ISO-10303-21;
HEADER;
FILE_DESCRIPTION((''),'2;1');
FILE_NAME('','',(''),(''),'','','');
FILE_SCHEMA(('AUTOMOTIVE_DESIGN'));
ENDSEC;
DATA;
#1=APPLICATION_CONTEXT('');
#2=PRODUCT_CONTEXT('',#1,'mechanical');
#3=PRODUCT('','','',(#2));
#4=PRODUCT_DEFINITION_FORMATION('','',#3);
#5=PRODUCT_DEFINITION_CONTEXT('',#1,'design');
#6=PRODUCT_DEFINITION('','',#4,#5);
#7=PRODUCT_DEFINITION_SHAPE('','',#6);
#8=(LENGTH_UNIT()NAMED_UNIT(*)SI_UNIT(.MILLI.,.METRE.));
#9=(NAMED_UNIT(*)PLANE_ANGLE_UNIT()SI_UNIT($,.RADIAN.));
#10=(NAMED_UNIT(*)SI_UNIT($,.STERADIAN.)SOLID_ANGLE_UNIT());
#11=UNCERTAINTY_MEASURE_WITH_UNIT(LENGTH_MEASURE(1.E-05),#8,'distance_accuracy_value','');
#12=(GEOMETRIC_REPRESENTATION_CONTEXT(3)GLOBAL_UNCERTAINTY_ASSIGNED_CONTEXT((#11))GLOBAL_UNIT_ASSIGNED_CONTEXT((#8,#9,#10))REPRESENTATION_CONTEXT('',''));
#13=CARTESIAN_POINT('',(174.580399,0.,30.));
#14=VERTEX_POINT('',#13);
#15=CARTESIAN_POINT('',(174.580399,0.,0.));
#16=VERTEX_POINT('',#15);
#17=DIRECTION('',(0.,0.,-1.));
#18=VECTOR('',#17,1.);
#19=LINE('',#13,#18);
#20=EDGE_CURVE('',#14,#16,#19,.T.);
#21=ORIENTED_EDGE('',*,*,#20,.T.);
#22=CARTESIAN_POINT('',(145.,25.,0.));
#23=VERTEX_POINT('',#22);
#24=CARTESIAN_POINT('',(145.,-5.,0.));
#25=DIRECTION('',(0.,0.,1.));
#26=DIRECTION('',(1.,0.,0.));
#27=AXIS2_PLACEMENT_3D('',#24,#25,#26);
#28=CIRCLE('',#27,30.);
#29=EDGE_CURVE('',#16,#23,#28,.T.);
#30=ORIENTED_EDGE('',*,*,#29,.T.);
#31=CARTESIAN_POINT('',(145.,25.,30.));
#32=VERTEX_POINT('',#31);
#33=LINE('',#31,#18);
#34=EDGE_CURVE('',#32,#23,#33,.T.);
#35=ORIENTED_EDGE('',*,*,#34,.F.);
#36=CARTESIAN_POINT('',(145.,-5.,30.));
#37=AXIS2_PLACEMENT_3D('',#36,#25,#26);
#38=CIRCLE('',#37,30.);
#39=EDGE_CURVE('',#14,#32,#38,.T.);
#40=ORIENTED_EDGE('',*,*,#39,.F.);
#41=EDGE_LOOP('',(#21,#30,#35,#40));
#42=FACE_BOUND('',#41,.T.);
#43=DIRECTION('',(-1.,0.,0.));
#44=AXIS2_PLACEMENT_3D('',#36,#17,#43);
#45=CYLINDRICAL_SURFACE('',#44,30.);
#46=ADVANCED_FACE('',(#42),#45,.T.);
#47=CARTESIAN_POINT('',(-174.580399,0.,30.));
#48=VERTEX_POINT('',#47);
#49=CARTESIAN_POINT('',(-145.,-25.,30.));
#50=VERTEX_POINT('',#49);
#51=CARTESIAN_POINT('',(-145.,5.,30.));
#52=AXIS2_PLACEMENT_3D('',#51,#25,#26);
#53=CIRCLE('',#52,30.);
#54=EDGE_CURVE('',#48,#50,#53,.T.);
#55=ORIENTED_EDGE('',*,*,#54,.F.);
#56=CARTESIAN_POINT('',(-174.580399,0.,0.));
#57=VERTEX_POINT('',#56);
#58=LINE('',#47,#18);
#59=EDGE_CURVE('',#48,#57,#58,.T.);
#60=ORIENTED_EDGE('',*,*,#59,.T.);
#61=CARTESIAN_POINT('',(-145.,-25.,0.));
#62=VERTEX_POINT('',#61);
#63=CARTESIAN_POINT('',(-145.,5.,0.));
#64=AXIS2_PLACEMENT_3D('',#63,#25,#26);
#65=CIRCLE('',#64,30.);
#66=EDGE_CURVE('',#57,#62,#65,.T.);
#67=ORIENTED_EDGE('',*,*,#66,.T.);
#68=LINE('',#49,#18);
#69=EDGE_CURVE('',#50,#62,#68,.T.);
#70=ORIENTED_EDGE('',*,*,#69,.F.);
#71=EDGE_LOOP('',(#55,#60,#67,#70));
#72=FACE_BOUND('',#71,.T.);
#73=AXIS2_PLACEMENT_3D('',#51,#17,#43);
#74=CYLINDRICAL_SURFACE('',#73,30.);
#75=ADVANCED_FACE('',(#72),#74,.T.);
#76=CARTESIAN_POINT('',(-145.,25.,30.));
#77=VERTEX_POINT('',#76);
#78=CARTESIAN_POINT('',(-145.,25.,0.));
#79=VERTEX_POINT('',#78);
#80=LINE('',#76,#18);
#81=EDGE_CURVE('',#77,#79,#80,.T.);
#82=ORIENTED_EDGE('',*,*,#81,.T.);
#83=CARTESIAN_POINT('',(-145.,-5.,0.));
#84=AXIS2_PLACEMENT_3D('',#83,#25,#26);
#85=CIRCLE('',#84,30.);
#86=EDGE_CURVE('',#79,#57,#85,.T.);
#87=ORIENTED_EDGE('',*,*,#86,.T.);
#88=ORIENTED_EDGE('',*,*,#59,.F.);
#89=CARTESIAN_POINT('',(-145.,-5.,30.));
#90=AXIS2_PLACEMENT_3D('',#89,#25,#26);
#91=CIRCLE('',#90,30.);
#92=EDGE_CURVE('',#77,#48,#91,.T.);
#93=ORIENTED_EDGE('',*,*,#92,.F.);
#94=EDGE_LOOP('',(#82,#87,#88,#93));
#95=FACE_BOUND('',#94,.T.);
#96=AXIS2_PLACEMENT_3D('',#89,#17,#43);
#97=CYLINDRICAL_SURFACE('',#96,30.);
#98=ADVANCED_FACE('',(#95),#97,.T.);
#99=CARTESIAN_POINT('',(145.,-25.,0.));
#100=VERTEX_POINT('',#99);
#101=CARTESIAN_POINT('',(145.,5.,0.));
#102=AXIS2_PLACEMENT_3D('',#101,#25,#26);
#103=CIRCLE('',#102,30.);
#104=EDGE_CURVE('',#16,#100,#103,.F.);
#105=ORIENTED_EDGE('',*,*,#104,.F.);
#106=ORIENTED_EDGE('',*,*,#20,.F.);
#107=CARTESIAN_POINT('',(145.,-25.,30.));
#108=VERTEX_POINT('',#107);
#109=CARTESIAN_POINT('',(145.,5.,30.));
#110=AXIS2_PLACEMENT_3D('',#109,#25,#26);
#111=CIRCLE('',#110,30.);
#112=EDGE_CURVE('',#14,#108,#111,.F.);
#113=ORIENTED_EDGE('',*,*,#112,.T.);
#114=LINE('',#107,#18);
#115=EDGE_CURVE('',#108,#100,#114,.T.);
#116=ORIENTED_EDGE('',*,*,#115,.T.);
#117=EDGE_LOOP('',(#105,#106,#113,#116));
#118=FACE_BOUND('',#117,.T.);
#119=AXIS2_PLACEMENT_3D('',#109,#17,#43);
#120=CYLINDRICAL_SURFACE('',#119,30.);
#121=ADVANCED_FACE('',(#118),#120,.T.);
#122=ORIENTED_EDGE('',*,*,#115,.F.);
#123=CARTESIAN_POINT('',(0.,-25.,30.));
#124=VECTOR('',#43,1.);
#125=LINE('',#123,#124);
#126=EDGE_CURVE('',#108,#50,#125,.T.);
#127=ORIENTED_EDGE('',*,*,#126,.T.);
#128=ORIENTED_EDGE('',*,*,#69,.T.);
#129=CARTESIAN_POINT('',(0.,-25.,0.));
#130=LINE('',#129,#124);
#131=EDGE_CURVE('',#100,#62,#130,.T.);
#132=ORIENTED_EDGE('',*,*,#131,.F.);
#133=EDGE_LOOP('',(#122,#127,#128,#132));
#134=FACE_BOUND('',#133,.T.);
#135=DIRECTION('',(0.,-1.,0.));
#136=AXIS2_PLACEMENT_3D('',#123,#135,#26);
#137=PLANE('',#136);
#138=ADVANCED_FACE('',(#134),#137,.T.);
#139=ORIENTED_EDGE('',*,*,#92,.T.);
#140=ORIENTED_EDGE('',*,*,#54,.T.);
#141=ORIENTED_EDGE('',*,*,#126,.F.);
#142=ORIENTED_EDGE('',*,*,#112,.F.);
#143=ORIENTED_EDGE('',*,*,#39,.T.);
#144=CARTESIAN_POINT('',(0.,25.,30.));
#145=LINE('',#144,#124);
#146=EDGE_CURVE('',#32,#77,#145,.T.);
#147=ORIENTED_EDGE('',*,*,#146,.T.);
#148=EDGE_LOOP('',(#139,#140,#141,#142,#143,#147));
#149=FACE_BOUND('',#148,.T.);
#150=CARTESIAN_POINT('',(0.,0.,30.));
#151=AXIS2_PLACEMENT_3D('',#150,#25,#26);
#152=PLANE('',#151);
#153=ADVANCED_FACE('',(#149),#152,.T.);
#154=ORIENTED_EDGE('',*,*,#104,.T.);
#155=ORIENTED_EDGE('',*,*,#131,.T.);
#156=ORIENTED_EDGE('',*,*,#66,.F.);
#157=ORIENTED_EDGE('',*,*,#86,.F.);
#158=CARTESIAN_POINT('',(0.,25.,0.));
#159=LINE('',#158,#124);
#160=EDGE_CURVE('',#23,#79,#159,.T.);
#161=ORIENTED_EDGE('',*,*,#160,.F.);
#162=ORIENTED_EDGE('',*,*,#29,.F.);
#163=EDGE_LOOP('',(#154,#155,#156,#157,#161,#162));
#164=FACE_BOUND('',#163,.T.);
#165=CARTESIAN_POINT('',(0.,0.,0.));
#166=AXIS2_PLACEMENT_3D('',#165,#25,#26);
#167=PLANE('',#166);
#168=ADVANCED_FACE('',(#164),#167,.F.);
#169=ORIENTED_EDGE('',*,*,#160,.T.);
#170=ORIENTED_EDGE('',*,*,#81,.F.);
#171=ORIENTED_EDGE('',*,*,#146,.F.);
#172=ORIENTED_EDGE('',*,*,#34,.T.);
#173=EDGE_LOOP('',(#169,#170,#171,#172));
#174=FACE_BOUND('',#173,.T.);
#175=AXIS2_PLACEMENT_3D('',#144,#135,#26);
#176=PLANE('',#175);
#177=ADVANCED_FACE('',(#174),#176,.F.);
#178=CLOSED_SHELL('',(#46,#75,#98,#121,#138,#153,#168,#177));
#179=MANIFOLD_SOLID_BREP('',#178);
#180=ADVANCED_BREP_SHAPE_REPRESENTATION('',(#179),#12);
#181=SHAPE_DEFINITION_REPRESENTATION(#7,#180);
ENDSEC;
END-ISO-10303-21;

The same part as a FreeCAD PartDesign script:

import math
import FreeCAD as App
import Part
import Sketcher

doc = App.newDocument("Part")
params = doc.addObject("Spreadsheet::Sheet", "Params")
for row, (alias, value) in enumerate([
    ("sketch1_radius", "30 mm"),
    ("sketch1_width", "290 mm"),
    ("pad1_length", "30 mm"),
], start=1):
    params.set(f"A{row}", alias)
    params.set(f"B{row}", "=" + value)
    params.setAlias(f"B{row}", alias)

body = doc.addObject("PartDesign::Body", "Body")

# Sketch on XY plane
sketch1 = doc.addObject("Sketcher::SketchObject", "Sketch")
body.addObject(sketch1)
sketch1.AttachmentSupport = (doc.XY_Plane, [""])
sketch1.MapMode = "FlatFace"
sketch1.addGeometry([
    Part.LineSegment(App.Vector(-145, -25, 0), App.Vector(145, -25, 0)),  # 0
    Part.ArcOfCircle(Part.Circle(App.Vector(145, 5, 0), App.Vector(0, 0, 1), 30), math.radians(-90), math.radians(-10)),  # 1
    Part.ArcOfCircle(Part.Circle(App.Vector(145, -5, 0), App.Vector(0, 0, 1), 30), math.radians(10), math.radians(90)),  # 2
    Part.LineSegment(App.Vector(145, 25, 0), App.Vector(-145, 25, 0)),  # 3
    Part.ArcOfCircle(Part.Circle(App.Vector(-145, -5, 0), App.Vector(0, 0, 1), 30), math.radians(90), math.radians(170)),  # 4
    Part.ArcOfCircle(Part.Circle(App.Vector(-145, 5, 0), App.Vector(0, 0, 1), 30), math.radians(-170), math.radians(-90)),  # 5
], False)
sketch1.addConstraint([
    Sketcher.Constraint("Tangent", 0, 2, 1, 1),
    Sketcher.Constraint("Coincident", 1, 2, 2, 1),
    Sketcher.Constraint("Tangent", 2, 2, 3, 1),
    Sketcher.Constraint("Tangent", 3, 2, 4, 1),
    Sketcher.Constraint("Coincident", 4, 2, 5, 1),
    Sketcher.Constraint("Tangent", 5, 2, 0, 1),
    Sketcher.Constraint("Horizontal", 0),
    Sketcher.Constraint("Horizontal", 3),
    Sketcher.Constraint("Equal", 1, 2),
    Sketcher.Constraint("Equal", 2, 4),
    Sketcher.Constraint("Equal", 4, 5),
    Sketcher.Constraint("Symmetric", 1, 3, 4, 3, -1, 1),
    Sketcher.Constraint("Symmetric", 1, 2, 4, 2, -2),
    Sketcher.Constraint("Radius", 1, 30.0),
    Sketcher.Constraint("DistanceX", 0, 1, 0, 2, 290.0),
    Sketcher.Constraint("DistanceY", -1, 1, 1, 3, 5.0),
])
sketch1.setExpression("Constraints[13]", "Params.sketch1_radius")
sketch1.setExpression("Constraints[14]", "Params.sketch1_width")
pad1 = doc.addObject("PartDesign::Pad", "Pad")
body.addObject(pad1)
pad1.Profile = sketch1
pad1.setExpression("Length", "Params.pad1_length")

doc.recompute()
